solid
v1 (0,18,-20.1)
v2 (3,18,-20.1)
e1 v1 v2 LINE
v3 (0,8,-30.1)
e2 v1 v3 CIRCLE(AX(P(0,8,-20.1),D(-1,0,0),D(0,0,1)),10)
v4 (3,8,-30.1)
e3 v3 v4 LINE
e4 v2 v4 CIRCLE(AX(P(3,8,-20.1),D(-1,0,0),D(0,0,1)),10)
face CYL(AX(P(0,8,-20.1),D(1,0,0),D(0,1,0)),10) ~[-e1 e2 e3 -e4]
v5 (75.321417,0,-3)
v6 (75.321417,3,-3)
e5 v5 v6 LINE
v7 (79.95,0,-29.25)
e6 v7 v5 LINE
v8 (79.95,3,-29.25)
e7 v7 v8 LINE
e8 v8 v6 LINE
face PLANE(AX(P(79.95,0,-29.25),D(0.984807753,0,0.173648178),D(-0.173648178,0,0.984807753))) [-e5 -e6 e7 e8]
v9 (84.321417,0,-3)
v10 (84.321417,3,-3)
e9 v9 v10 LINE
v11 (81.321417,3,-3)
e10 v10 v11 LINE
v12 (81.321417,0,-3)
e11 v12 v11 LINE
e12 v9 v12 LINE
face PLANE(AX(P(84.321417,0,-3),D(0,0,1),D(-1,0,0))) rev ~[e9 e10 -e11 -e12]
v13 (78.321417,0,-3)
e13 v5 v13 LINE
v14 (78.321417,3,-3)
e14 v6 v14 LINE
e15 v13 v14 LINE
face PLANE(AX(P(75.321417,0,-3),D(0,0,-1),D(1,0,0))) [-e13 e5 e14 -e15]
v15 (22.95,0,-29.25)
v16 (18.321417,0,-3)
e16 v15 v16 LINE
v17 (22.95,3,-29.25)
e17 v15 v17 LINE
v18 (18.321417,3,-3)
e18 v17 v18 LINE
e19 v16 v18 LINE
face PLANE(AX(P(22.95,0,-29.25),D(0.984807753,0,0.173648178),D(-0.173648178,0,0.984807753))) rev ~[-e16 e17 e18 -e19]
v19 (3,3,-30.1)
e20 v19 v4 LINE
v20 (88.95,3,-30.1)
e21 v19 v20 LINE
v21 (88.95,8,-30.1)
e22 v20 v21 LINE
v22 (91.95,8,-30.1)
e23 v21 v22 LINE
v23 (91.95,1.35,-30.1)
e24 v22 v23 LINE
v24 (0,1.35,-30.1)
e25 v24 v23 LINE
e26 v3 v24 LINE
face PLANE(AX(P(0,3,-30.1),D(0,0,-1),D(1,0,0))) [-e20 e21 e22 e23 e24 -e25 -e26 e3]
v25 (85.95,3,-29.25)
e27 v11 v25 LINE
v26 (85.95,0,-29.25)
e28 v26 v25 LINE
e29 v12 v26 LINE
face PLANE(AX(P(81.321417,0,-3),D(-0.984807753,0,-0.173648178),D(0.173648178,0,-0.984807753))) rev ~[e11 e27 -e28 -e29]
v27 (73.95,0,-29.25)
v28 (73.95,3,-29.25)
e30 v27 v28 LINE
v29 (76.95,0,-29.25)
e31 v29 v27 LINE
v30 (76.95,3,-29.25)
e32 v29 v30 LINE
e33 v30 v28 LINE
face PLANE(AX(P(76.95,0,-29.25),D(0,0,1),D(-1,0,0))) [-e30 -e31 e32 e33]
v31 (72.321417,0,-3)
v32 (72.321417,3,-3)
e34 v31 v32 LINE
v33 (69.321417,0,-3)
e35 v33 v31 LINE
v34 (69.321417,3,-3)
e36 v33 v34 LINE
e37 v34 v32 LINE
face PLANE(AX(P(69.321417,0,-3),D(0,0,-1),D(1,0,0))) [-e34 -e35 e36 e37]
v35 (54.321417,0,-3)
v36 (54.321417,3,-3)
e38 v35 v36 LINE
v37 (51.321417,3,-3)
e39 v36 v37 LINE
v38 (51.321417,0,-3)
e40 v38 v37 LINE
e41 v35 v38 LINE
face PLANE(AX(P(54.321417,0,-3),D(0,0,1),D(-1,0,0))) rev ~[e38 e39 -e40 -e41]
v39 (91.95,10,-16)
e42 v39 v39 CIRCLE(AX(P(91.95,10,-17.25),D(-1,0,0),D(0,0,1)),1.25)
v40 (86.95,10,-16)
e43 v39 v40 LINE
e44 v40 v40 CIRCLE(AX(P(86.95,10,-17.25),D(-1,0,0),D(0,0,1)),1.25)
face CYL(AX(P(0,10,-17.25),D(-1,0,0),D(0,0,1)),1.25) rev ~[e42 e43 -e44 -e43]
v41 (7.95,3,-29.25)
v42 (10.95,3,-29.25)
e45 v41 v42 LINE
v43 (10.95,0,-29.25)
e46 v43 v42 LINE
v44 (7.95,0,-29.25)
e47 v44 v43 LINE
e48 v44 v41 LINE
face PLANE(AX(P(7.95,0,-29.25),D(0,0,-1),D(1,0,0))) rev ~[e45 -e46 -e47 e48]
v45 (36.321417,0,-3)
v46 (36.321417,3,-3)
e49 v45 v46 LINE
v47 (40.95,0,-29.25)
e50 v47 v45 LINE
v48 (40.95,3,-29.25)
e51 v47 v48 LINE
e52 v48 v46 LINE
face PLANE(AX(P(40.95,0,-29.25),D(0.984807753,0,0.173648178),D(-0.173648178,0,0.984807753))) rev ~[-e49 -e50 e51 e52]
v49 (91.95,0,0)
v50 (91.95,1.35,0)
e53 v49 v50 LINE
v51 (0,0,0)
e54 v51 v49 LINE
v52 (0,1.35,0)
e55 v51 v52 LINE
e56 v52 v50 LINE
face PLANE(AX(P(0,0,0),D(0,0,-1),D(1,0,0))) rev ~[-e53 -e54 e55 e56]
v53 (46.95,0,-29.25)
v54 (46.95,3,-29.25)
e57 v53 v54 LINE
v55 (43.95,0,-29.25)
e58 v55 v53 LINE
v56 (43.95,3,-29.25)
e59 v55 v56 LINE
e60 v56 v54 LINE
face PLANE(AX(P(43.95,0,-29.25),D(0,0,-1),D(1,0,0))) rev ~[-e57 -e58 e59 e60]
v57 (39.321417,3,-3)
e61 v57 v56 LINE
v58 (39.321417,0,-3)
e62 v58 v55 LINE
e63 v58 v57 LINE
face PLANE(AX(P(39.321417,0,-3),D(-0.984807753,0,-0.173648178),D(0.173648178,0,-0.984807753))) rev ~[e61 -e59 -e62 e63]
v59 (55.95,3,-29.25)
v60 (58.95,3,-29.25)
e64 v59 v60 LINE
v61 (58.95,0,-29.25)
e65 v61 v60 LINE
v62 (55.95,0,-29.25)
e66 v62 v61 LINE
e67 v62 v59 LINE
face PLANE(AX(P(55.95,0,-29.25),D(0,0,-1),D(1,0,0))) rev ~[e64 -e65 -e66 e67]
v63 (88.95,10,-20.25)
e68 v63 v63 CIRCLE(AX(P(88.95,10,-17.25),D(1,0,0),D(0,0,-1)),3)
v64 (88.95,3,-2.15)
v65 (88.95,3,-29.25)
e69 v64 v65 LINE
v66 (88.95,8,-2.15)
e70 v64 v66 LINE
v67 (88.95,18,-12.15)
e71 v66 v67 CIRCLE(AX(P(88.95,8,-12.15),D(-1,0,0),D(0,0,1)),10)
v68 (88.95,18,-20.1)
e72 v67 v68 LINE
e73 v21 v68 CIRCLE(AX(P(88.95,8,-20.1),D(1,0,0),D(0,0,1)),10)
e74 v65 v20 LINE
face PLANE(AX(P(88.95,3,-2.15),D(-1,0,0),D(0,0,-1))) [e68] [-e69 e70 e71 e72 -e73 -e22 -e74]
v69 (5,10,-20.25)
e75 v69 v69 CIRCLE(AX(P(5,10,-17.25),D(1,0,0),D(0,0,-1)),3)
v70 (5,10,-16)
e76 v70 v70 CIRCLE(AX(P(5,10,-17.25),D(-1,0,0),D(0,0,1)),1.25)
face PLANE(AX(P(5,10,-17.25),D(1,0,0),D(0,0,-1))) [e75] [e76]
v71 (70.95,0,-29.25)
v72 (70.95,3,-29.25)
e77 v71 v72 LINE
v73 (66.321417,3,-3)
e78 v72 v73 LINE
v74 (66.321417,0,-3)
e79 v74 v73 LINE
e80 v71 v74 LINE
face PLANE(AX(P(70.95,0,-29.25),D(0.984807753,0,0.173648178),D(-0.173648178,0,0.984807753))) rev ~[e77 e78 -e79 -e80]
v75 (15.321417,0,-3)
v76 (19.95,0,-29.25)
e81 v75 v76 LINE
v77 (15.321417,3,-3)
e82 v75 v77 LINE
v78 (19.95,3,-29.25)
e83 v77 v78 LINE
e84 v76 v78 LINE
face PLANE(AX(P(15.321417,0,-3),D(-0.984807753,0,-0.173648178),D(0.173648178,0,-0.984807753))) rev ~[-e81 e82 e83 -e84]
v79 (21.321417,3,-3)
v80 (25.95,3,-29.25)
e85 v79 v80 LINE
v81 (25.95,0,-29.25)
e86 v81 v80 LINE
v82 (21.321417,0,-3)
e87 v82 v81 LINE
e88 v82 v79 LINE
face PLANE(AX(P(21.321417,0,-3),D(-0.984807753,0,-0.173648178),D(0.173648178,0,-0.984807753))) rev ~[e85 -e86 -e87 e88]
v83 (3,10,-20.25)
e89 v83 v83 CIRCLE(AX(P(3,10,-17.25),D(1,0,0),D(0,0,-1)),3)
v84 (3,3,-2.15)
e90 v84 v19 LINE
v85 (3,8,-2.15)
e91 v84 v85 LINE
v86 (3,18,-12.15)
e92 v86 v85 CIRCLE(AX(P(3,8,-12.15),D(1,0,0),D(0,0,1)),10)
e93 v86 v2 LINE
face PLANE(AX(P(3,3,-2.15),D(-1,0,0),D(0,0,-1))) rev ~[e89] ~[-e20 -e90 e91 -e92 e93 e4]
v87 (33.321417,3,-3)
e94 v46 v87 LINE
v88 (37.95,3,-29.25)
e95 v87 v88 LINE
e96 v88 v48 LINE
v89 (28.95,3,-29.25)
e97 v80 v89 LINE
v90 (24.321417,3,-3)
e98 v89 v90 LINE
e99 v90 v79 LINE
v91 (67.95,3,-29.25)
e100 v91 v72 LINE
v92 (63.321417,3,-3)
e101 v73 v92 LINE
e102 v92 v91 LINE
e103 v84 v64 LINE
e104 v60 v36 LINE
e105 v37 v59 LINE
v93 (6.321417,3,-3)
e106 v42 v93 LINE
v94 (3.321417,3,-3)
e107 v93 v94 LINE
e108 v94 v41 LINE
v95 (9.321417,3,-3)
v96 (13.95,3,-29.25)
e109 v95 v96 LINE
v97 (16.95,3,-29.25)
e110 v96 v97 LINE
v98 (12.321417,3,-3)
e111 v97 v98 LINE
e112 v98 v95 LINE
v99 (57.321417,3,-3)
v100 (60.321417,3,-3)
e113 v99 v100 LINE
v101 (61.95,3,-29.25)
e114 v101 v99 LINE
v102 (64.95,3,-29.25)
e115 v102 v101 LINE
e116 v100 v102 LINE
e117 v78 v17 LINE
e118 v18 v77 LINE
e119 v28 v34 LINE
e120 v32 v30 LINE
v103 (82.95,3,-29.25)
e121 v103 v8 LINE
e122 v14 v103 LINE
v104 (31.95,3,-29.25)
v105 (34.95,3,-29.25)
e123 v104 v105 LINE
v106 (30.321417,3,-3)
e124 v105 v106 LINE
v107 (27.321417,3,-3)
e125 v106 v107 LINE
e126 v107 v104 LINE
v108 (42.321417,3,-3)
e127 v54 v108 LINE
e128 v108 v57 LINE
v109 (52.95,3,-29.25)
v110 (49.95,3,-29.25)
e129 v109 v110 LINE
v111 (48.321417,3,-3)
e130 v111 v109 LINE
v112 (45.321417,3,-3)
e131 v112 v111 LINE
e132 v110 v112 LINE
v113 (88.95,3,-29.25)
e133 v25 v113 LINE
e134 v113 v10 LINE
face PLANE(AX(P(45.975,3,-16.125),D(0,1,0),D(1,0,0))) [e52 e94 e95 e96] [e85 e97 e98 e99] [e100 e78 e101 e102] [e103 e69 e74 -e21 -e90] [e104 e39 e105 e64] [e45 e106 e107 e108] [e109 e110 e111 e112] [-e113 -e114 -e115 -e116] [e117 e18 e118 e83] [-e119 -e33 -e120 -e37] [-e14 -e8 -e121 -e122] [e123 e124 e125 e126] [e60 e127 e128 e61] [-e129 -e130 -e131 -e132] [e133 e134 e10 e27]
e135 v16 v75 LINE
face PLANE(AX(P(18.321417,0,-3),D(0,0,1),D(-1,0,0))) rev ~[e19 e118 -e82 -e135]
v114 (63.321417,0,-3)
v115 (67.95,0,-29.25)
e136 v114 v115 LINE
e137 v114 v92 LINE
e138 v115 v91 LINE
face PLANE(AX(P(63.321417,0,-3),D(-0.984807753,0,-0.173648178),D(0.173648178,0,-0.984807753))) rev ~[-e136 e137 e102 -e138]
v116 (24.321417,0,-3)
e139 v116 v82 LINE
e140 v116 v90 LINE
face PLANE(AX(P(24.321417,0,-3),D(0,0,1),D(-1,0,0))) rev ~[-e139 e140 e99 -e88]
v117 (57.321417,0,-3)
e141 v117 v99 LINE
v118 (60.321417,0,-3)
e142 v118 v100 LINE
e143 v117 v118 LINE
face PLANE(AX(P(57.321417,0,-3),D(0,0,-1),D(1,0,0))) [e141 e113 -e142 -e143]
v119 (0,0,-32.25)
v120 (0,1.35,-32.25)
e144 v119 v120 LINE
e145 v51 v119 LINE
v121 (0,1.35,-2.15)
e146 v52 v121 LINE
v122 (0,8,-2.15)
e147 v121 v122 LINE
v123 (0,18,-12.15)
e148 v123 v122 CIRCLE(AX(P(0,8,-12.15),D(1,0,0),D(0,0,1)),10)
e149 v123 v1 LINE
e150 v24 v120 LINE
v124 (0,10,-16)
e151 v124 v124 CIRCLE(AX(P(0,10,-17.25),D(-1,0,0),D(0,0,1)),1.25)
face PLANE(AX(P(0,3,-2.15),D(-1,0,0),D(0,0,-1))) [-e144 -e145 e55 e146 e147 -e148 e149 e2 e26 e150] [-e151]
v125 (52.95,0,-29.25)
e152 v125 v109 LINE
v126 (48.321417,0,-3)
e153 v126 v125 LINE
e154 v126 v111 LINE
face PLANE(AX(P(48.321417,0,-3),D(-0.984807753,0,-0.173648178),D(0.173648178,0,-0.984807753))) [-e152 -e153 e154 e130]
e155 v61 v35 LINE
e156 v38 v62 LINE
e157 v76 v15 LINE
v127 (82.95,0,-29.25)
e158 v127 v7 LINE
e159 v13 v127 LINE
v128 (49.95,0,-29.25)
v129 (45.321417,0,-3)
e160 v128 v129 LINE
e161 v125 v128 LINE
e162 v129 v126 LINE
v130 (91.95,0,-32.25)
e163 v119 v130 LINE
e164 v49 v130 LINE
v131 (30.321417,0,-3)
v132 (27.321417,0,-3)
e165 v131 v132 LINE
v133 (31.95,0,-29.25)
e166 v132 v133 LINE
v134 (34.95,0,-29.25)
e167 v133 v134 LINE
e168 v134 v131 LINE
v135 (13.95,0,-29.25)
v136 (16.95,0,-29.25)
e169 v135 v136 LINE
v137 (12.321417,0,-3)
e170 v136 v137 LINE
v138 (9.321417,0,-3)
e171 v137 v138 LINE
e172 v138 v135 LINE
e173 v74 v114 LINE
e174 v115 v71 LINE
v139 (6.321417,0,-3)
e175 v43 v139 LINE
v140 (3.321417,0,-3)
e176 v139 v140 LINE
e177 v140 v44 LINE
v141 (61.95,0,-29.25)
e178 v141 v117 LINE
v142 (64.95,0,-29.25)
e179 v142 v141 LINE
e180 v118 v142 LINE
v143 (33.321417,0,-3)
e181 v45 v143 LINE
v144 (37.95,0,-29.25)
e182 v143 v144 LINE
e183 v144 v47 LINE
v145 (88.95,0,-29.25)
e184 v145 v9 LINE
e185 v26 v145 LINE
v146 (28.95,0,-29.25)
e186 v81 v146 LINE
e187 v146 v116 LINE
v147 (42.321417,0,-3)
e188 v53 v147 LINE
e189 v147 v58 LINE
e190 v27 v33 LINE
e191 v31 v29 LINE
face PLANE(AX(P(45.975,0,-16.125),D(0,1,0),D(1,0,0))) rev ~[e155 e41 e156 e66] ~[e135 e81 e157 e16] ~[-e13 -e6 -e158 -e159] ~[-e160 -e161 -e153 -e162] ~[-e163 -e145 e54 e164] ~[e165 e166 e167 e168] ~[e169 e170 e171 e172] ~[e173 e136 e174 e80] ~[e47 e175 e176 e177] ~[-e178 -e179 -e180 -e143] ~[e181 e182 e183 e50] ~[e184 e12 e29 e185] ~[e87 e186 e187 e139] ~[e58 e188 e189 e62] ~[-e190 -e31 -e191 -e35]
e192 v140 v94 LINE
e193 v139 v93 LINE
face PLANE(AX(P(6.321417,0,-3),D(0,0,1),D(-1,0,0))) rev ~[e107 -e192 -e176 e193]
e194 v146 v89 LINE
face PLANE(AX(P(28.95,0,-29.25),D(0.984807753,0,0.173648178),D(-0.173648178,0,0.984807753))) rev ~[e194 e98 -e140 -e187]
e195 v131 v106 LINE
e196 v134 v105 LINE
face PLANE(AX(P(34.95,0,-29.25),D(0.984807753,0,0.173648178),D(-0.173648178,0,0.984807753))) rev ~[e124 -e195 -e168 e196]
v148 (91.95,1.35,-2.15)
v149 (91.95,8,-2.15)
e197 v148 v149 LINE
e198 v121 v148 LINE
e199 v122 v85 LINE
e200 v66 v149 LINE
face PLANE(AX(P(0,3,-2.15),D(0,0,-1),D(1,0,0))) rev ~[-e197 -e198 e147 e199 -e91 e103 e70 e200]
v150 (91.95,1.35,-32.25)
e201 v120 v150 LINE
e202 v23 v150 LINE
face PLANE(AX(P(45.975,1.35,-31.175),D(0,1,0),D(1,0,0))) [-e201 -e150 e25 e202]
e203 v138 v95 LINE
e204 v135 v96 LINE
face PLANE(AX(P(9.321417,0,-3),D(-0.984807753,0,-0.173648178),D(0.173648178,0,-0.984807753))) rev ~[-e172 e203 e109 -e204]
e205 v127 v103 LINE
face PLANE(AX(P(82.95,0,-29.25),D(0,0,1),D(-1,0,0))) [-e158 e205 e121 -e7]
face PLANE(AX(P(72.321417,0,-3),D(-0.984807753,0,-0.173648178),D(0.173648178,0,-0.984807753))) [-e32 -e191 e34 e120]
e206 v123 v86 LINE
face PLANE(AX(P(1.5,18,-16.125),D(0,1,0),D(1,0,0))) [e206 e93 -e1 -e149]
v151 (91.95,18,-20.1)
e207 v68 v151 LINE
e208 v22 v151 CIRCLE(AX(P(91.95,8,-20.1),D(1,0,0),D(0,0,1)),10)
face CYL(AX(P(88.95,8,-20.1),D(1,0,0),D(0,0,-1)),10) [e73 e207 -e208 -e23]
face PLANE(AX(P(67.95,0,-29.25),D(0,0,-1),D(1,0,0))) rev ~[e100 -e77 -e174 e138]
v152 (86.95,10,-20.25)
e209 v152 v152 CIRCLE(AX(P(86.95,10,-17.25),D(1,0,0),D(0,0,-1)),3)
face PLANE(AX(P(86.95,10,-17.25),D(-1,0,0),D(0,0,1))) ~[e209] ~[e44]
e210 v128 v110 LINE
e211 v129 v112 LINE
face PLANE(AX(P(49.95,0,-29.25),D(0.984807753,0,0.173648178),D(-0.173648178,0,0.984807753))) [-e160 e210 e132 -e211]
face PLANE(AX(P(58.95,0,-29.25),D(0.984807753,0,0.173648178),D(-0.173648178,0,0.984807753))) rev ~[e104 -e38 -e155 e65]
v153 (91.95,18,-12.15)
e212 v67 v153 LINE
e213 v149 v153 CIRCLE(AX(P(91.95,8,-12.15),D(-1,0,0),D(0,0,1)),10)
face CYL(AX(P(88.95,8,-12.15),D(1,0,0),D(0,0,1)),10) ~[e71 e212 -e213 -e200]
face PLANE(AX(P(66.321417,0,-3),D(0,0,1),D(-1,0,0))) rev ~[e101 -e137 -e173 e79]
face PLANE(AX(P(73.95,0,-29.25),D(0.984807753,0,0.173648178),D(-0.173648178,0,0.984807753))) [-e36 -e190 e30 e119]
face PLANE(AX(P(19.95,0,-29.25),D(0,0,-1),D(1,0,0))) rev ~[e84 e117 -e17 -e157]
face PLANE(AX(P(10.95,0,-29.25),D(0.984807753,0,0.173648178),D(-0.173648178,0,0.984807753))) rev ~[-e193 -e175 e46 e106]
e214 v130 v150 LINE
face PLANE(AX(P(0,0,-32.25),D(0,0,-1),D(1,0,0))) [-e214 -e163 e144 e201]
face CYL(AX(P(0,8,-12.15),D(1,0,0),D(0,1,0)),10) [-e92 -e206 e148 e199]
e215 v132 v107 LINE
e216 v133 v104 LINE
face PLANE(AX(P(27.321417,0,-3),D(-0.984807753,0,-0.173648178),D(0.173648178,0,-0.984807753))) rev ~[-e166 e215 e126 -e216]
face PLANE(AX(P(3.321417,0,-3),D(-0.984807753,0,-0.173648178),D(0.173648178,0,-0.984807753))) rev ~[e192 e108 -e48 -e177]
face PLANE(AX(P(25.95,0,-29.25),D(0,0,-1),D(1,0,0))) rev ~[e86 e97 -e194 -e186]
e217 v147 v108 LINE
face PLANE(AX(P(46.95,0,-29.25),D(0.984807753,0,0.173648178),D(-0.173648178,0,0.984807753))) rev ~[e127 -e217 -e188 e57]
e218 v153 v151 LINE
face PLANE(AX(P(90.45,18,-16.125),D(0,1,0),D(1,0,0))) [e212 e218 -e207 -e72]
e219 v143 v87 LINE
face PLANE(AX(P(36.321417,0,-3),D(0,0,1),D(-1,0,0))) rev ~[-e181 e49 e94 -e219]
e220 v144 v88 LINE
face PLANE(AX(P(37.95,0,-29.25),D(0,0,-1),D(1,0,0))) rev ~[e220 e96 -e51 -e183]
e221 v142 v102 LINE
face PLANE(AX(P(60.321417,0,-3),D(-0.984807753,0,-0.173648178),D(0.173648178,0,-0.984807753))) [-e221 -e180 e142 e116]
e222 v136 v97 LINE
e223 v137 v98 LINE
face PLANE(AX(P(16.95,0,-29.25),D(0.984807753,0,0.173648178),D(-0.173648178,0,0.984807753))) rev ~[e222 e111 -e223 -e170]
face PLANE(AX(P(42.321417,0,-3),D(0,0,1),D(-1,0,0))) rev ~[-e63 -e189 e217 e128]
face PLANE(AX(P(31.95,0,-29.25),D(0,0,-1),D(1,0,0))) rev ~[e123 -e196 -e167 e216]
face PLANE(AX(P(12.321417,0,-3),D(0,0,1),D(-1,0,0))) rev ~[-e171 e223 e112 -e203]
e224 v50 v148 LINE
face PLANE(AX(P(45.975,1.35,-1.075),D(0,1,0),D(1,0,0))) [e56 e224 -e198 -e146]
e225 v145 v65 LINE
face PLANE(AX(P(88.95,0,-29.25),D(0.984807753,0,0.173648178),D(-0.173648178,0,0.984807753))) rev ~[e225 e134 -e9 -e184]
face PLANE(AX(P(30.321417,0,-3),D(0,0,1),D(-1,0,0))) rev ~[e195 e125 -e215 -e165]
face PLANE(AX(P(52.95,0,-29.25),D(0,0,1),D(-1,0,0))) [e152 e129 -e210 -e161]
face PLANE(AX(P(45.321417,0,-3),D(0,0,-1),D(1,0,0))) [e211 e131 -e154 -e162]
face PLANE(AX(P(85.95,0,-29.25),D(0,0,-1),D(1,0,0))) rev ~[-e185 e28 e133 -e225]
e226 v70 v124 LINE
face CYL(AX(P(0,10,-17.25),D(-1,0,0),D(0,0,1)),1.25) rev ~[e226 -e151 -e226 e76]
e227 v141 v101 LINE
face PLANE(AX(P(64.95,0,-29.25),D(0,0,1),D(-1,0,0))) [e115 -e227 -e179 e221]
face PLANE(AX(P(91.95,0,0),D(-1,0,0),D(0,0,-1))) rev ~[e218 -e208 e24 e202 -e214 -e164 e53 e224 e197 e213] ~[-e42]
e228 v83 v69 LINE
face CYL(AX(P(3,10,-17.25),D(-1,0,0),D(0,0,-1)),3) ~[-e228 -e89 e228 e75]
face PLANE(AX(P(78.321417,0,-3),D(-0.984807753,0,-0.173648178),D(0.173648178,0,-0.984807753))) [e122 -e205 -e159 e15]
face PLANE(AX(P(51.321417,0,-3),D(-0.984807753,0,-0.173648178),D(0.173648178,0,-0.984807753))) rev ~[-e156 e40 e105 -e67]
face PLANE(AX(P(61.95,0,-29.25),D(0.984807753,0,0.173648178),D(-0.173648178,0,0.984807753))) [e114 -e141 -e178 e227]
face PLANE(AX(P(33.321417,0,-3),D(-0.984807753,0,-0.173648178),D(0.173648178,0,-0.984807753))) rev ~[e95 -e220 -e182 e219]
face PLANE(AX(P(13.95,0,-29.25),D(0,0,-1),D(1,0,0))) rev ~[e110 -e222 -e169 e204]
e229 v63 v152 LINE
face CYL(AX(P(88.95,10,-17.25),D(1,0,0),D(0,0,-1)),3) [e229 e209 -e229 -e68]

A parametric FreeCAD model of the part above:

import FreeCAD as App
import Part
import Sketcher
Q = App.Units.Quantity


def edges_at(feature, points):
    """Names of the edges that pass closest to the given points."""
    edges = feature.Shape.Edges
    near = lambda p: min(range(len(edges)), key=lambda i: edges[i].distToShape(Part.Vertex(*p))[0])
    return sorted({f"Edge{near(p) + 1}" for p in points})


def add_polygon(sketch, points):
    """Adds a closed chain of lines whose ends are joined by coincident constraints."""
    first, n = sketch.GeometryCount, len(points)
    for a, b in zip(points, points[1:] + points[:1]):
        sketch.addGeometry(Part.LineSegment(App.Vector(*a, 0), App.Vector(*b, 0)), False)
    for i in range(n):
        sketch.addConstraint(Sketcher.Constraint("Coincident", first + i, 2, first + (i + 1) % n, 1))

doc = App.newDocument("Part")
params = doc.addObject("Spreadsheet::Sheet", "Params")
for row, (alias, value) in enumerate([
    ("sketch1_width", "91.95 mm"),
    ("sketch1_height", "32.25 mm"),
    ("pad1_length", "3 mm"),
    ("sketch2_width", "91.95 mm"),
    ("sketch2_height", "2.15 mm"),
    ("pocket1_length", "1.65 mm"),
    ("sketch3_width", "3 mm"),
    ("sketch3_height", "27.95 mm"),
    ("pad2_length", "15 mm"),
    ("sketch4_diameter", "2.5 mm"),
    ("fillet_radius", "10 mm"),
    ("sketch5_width", "3 mm"),
    ("sketch6_width", "3 mm"),
    ("sketch7_width", "3 mm"),
    ("sketch8_width", "3 mm"),
    ("sketch9_width", "3 mm"),
    ("sketch10_width", "3 mm"),
    ("sketch11_width", "3 mm"),
    ("sketch12_width", "3 mm"),
    ("sketch13_width", "3 mm"),
    ("sketch14_width", "3 mm"),
    ("sketch15_width", "3 mm"),
    ("sketch16_width", "3 mm"),
    ("sketch17_width", "3 mm"),
    ("sketch18_width", "3 mm"),
    ("sketch19_diameter", "6 mm"),
    ("pad3_length", "2 mm"),
    ("sketch20_diameter", "2.5 mm"),
], start=1):
    params.set(f"A{row}", alias)
    params.set(f"B{row}", "=" + value)
    params.setAlias(f"B{row}", alias)

body = doc.addObject("PartDesign::Body", "Body")

# Sketch on XZ plane
sketch1 = doc.addObject("Sketcher::SketchObject", "Sketch")
body.addObject(sketch1)
sketch1.AttachmentSupport = (doc.XZ_Plane, [""])
sketch1.MapMode = "FlatFace"
add_polygon(sketch1, [(0, -32), (0, 0), (92, 0), (92, -32)])  # lines 0-3
sketch1.addConstraint([
    Sketcher.Constraint("Vertical", 0),
    Sketcher.Constraint("Horizontal", 1),
    Sketcher.Constraint("Vertical", 2),
    Sketcher.Constraint("Horizontal", 3),
    Sketcher.Constraint("Coincident", 0, 2, -1, 1),
    Sketcher.Constraint("DistanceX", 1, 1, 1, 2, Q("91.95 mm")),
    Sketcher.Constraint("DistanceY", 0, 1, 0, 2, Q("32.25 mm")),
])
sketch1.setExpression("Constraints[9]", "Params.sketch1_width")
sketch1.setExpression("Constraints[10]", "Params.sketch1_height")
pad1 = doc.addObject("PartDesign::Pad", "Pad")
body.addObject(pad1)
pad1.Profile = sketch1
pad1.setExpression("Length", "Params.pad1_length")
pad1.Reversed = True

# Sketch on XZ plane
sketch2 = doc.addObject("Sketcher::SketchObject", "Sketch001")
body.addObject(sketch2)
sketch2.AttachmentSupport = (doc.XZ_Plane, [""])
sketch2.MapMode = "FlatFace"
sketch2.AttachmentOffset = App.Placement(App.Vector(0, 0, -3), App.Rotation())
add_polygon(sketch2, [(0, -32.2), (0, -30.1), (92, -30.1), (92, -32.2)])  # lines 0-3
add_polygon(sketch2, [(0, -2.1), (0, 0), (92, 0), (92, -2.1)])  # lines 4-7
sketch2.addConstraint([
    Sketcher.Constraint("Vertical", 0),
    Sketcher.Constraint("Horizontal", 1),
    Sketcher.Constraint("Vertical", 2),
    Sketcher.Constraint("Horizontal", 3),
    Sketcher.Constraint("Vertical", 4),
    Sketcher.Constraint("Horizontal", 5),
    Sketcher.Constraint("Vertical", 6),
    Sketcher.Constraint("Horizontal", 7),
    Sketcher.Constraint("Coincident", 4, 2, -1, 1),
    Sketcher.Constraint("PointOnObject", 0, 2, -2),
    Sketcher.Constraint("Vertical", 2, 2, 5, 2),
    Sketcher.Constraint("Equal", 2, 4),
    Sketcher.Constraint("DistanceX", 1, 1, 1, 2, Q("91.95 mm")),
    Sketcher.Constraint("DistanceY", 0, 1, 0, 2, Q("2.15 mm")),
    Sketcher.Constraint("DistanceY", 0, 2, -1, 1, Q("30.1 mm")),
])
sketch2.setExpression("Constraints[20]", "Params.sketch2_width")
sketch2.setExpression("Constraints[21]", "Params.sketch2_height")
pocket1 = doc.addObject("PartDesign::Pocket", "Pocket")
body.addObject(pocket1)
pocket1.Profile = sketch2
pocket1.setExpression("Length", "Params.pocket1_length")
pocket1.Reversed = True

# Sketch on XZ plane
sketch3 = doc.addObject("Sketcher::SketchObject", "Sketch002")
body.addObject(sketch3)
sketch3.AttachmentSupport = (doc.XZ_Plane, [""])
sketch3.MapMode = "FlatFace"
sketch3.AttachmentOffset = App.Placement(App.Vector(0, 0, -3), App.Rotation())
add_polygon(sketch3, [(0, -30.1), (0, -2.1), (3, -2.1), (3, -30.1)])  # lines 0-3
add_polygon(sketch3, [(89, -30.1), (89, -2.1), (92, -2.1), (92, -30.1)])  # lines 4-7
sketch3.addConstraint([
    Sketcher.Constraint("Vertical", 0),
    Sketcher.Constraint("Horizontal", 1),
    Sketcher.Constraint("Vertical", 2),
    Sketcher.Constraint("Horizontal", 3),
    Sketcher.Constraint("Vertical", 4),
    Sketcher.Constraint("Horizontal", 5),
    Sketcher.Constraint("Vertical", 6),
    Sketcher.Constraint("Horizontal", 7),
    Sketcher.Constraint("PointOnObject", 0, 2, -2),
    Sketcher.Constraint("Horizontal", 1, 2, 4, 2),
    Sketcher.Constraint("Horizontal", 3, 2, 6, 2),
    Sketcher.Constraint("Equal", 3, 5),
    Sketcher.Constraint("DistanceX", 1, 1, 1, 2, Q("3 mm")),
    Sketcher.Constraint("DistanceY", 0, 1, 0, 2, Q("27.95 mm")),
    Sketcher.Constraint("DistanceY", 2, 2, -1, 1, Q("30.1 mm")),
    Sketcher.Constraint("DistanceX", -1, 1, 4, 2, Q("88.95 mm")),
])
sketch3.setExpression("Constraints[20]", "Params.sketch3_width")
sketch3.setExpression("Constraints[21]", "Params.sketch3_height")
pad2 = doc.addObject("PartDesign::Pad", "Pad001")
body.addObject(pad2)
pad2.Profile = sketch3
pad2.setExpression("Length", "Params.pad2_length")
pad2.Reversed = True

# Sketch on YZ plane
sketch4 = doc.addObject("Sketcher::SketchObject", "Sketch003")
body.addObject(sketch4)
sketch4.AttachmentSupport = (doc.YZ_Plane, [""])
sketch4.MapMode = "FlatFace"
sketch4.addGeometry(Part.Circle(App.Vector(10, -17.2, 0), App.Vector(0, 0, 1), 1.2), False)
sketch4.addConstraint([
    Sketcher.Constraint("Diameter", 0, Q("2.5 mm")),
    Sketcher.Constraint("DistanceX", -1, 1, 0, 3, Q("10 mm")),
    Sketcher.Constraint("DistanceY", 0, 3, -1, 1, Q("17.25 mm")),
])
sketch4.setExpression("Constraints[0]", "Params.sketch4_diameter")
pocket2 = doc.addObject("PartDesign::Pocket", "Pocket001")
body.addObject(pocket2)
pocket2.Profile = sketch4
pocket2.Type = "ThroughAll"
pocket2.Midplane = True
doc.recompute()

fillet = doc.addObject("PartDesign::Fillet", "Fillet")
body.addObject(fillet)
fillet.Base = (pocket2, edges_at(pocket2, [
    (1.5, 18, -2.15),
    (1.5, 18, -30.1),
    (90.45, 18, -30.1),
    (90.45, 18, -2.15),
]))
fillet.setExpression("Radius", "Params.fillet_radius")

# Sketch on XZ plane
sketch5 = doc.addObject("Sketcher::SketchObject", "Sketch004")
body.addObject(sketch5)
sketch5.AttachmentSupport = (doc.XZ_Plane, [""])
sketch5.MapMode = "FlatFace"
add_polygon(sketch5, [(8, -29.2), (10.9, -29.2), (6.3, -3), (3.3, -3)])  # lines 0-3
sketch5.addConstraint([
    Sketcher.Constraint("Horizontal", 0),
    Sketcher.Constraint("Horizontal", 2),
    Sketcher.Constraint("Parallel", 1, 3),
    Sketcher.Constraint("DistanceX", 0, 1, 0, 2, Q("3 mm")),
    Sketcher.Constraint("Angle", 1, Q("100 deg")),
    Sketcher.Constraint("DistanceY", 1, 2, -1, 1, Q("3 mm")),
    Sketcher.Constraint("DistanceX", -1, 1, 0, 2, Q("10.95 mm")),
    Sketcher.Constraint("DistanceY", 0, 2, -1, 1, Q("29.25 mm")),
])
sketch5.setExpression("Constraints[7]", "Params.sketch5_width")
pocket3 = doc.addObject("PartDesign::Pocket", "Pocket002")
body.addObject(pocket3)
pocket3.Profile = sketch5
pocket3.Type = "UpToFirst"

# Sketch on XZ plane
sketch6 = doc.addObject("Sketcher::SketchObject", "Sketch005")
body.addObject(sketch6)
sketch6.AttachmentSupport = (doc.XZ_Plane, [""])
sketch6.MapMode = "FlatFace"
add_polygon(sketch6, [(19.9, -29.2), (22.9, -29.2), (18.3, -3), (15.3, -3)])  # lines 0-3
sketch6.addConstraint([
    Sketcher.Constraint("Horizontal", 0),
    Sketcher.Constraint("Horizontal", 2),
    Sketcher.Constraint("Parallel", 1, 3),
    Sketcher.Constraint("DistanceX", 0, 1, 0, 2, Q("3 mm")),
    Sketcher.Constraint("Angle", 1, Q("100 deg")),
    Sketcher.Constraint("DistanceY", 1, 2, -1, 1, Q("3 mm")),
    Sketcher.Constraint("DistanceX", -1, 1, 0, 2, Q("22.95 mm")),
    Sketcher.Constraint("DistanceY", 0, 2, -1, 1, Q("29.25 mm")),
])
sketch6.setExpression("Constraints[7]", "Params.sketch6_width")
pocket4 = doc.addObject("PartDesign::Pocket", "Pocket003")
body.addObject(pocket4)
pocket4.Profile = sketch6
pocket4.Type = "UpToFirst"

# Sketch on XZ plane
sketch7 = doc.addObject("Sketcher::SketchObject", "Sketch006")
body.addObject(sketch7)
sketch7.AttachmentSupport = (doc.XZ_Plane, [""])
sketch7.MapMode = "FlatFace"
add_polygon(sketch7, [(25.9, -29.2), (28.9, -29.2), (24.3, -3), (21.3, -3)])  # lines 0-3
sketch7.addConstraint([
    Sketcher.Constraint("Horizontal", 0),
    Sketcher.Constraint("Horizontal", 2),
    Sketcher.Constraint("Parallel", 1, 3),
    Sketcher.Constraint("DistanceX", 0, 1, 0, 2, Q("3 mm")),
    Sketcher.Constraint("Angle", 1, Q("100 deg")),
    Sketcher.Constraint("DistanceY", 1, 2, -1, 1, Q("3 mm")),
    Sketcher.Constraint("DistanceX", -1, 1, 0, 2, Q("28.95 mm")),
    Sketcher.Constraint("DistanceY", 0, 2, -1, 1, Q("29.25 mm")),
])
sketch7.setExpression("Constraints[7]", "Params.sketch7_width")
pocket5 = doc.addObject("PartDesign::Pocket", "Pocket004")
body.addObject(pocket5)
pocket5.Profile = sketch7
pocket5.Type = "UpToFirst"

# Sketch on XZ plane
sketch8 = doc.addObject("Sketcher::SketchObject", "Sketch007")
body.addObject(sketch8)
sketch8.AttachmentSupport = (doc.XZ_Plane, [""])
sketch8.MapMode = "FlatFace"
add_polygon(sketch8, [(31.9, -29.2), (35, -29.2), (30.3, -3), (27.3, -3)])  # lines 0-3
sketch8.addConstraint([
    Sketcher.Constraint("Horizontal", 0),
    Sketcher.Constraint("Horizontal", 2),
    Sketcher.Constraint("Parallel", 1, 3),
    Sketcher.Constraint("DistanceX", 0, 1, 0, 2, Q("3 mm")),
    Sketcher.Constraint("Angle", 1, Q("100 deg")),
    Sketcher.Constraint("DistanceY", 1, 2, -1, 1, Q("3 mm")),
    Sketcher.Constraint("DistanceX", -1, 1, 0, 2, Q("34.95 mm")),
    Sketcher.Constraint("DistanceY", 0, 2, -1, 1, Q("29.25 mm")),
])
sketch8.setExpression("Constraints[7]", "Params.sketch8_width")
pocket6 = doc.addObject("PartDesign::Pocket", "Pocket005")
body.addObject(pocket6)
pocket6.Profile = sketch8
pocket6.Type = "UpToFirst"

# Sketch on XZ plane
sketch9 = doc.addObject("Sketcher::SketchObject", "Sketch008")
body.addObject(sketch9)
sketch9.AttachmentSupport = (doc.XZ_Plane, [""])
sketch9.MapMode = "FlatFace"
add_polygon(sketch9, [(38, -29.2), (41, -29.2), (36.3, -3), (33.3, -3)])  # lines 0-3
sketch9.addConstraint([
    Sketcher.Constraint("Horizontal", 0),
    Sketcher.Constraint("Horizontal", 2),
    Sketcher.Constraint("Parallel", 1, 3),
    Sketcher.Constraint("DistanceX", 0, 1, 0, 2, Q("3 mm")),
    Sketcher.Constraint("Angle", 1, Q("100 deg")),
    Sketcher.Constraint("DistanceY", 1, 2, -1, 1, Q("3 mm")),
    Sketcher.Constraint("DistanceX", -1, 1, 0, 2, Q("40.95 mm")),
    Sketcher.Constraint("DistanceY", 0, 2, -1, 1, Q("29.25 mm")),
])
sketch9.setExpression("Constraints[7]", "Params.sketch9_width")
pocket7 = doc.addObject("PartDesign::Pocket", "Pocket006")
body.addObject(pocket7)
pocket7.Profile = sketch9
pocket7.Type = "UpToFirst"

# Sketch on XZ plane
sketch10 = doc.addObject("Sketcher::SketchObject", "Sketch009")
body.addObject(sketch10)
sketch10.AttachmentSupport = (doc.XZ_Plane, [""])
sketch10.MapMode = "FlatFace"
add_polygon(sketch10, [(44, -29.2), (47, -29.2), (42.3, -3), (39.3, -3)])  # lines 0-3
sketch10.addConstraint([
    Sketcher.Constraint("Horizontal", 0),
    Sketcher.Constraint("Horizontal", 2),
    Sketcher.Constraint("Parallel", 1, 3),
    Sketcher.Constraint("DistanceX", 0, 1, 0, 2, Q("3 mm")),
    Sketcher.Constraint("Angle", 1, Q("100 deg")),
    Sketcher.Constraint("DistanceY", 1, 2, -1, 1, Q("3 mm")),
    Sketcher.Constraint("DistanceX", -1, 1, 0, 2, Q("46.95 mm")),
    Sketcher.Constraint("DistanceY", 0, 2, -1, 1, Q("29.25 mm")),
])
sketch10.setExpression("Constraints[7]", "Params.sketch10_width")
pocket8 = doc.addObject("PartDesign::Pocket", "Pocket007")
body.addObject(pocket8)
pocket8.Profile = sketch10
pocket8.Type = "UpToFirst"

# Sketch on XZ plane
sketch11 = doc.addObject("Sketcher::SketchObject", "Sketch010")
body.addObject(sketch11)
sketch11.AttachmentSupport = (doc.XZ_Plane, [""])
sketch11.MapMode = "FlatFace"
add_polygon(sketch11, [(56, -29.2), (59, -29.2), (54.3, -3), (51.3, -3)])  # lines 0-3
sketch11.addConstraint([
    Sketcher.Constraint("Horizontal", 0),
    Sketcher.Constraint("Horizontal", 2),
    Sketcher.Constraint("Parallel", 1, 3),
    Sketcher.Constraint("DistanceX", 0, 1, 0, 2, Q("3 mm")),
    Sketcher.Constraint("Angle", 1, Q("100 deg")),
    Sketcher.Constraint("DistanceY", 1, 2, -1, 1, Q("3 mm")),
    Sketcher.Constraint("DistanceX", -1, 1, 0, 2, Q("58.95 mm")),
    Sketcher.Constraint("DistanceY", 0, 2, -1, 1, Q("29.25 mm")),
])
sketch11.setExpression("Constraints[7]", "Params.sketch11_width")
pocket9 = doc.addObject("PartDesign::Pocket", "Pocket008")
body.addObject(pocket9)
pocket9.Profile = sketch11
pocket9.Type = "UpToFirst"

# Sketch on XZ plane
sketch12 = doc.addObject("Sketcher::SketchObject", "Sketch011")
body.addObject(sketch12)
sketch12.AttachmentSupport = (doc.XZ_Plane, [""])
sketch12.MapMode = "FlatFace"
add_polygon(sketch12, [(68, -29.2), (71, -29.2), (66.3, -3), (63.3, -3)])  # lines 0-3
sketch12.addConstraint([
    Sketcher.Constraint("Horizontal", 0),
    Sketcher.Constraint("Horizontal", 2),
    Sketcher.Constraint("Parallel", 1, 3),
    Sketcher.Constraint("DistanceX", 0, 1, 0, 2, Q("3 mm")),
    Sketcher.Constraint("Angle", 1, Q("100 deg")),
    Sketcher.Constraint("DistanceY", 1, 2, -1, 1, Q("3 mm")),
    Sketcher.Constraint("DistanceX", -1, 1, 0, 2, Q("70.95 mm")),
    Sketcher.Constraint("DistanceY", 0, 2, -1, 1, Q("29.25 mm")),
])
sketch12.setExpression("Constraints[7]", "Params.sketch12_width")
pocket10 = doc.addObject("PartDesign::Pocket", "Pocket009")
body.addObject(pocket10)
pocket10.Profile = sketch12
pocket10.Type = "UpToFirst"

# Sketch on XZ plane
sketch13 = doc.addObject("Sketcher::SketchObject", "Sketch012")
body.addObject(sketch13)
sketch13.AttachmentSupport = (doc.XZ_Plane, [""])
sketch13.MapMode = "FlatFace"
add_polygon(sketch13, [(75.3, -3), (80, -29.2), (83, -29.2), (78.3, -3)])  # lines 0-3
sketch13.addConstraint([
    Sketcher.Constraint("Horizontal", 1),
    Sketcher.Constraint("Horizontal", 3),
    Sketcher.Constraint("Parallel", 0, 2),
    Sketcher.Constraint("DistanceX", 1, 1, 1, 2, Q("3 mm")),
    Sketcher.Constraint("Angle", 0, Q("-80 deg")),
    Sketcher.Constraint("DistanceY", 2, 2, -1, 1, Q("3 mm")),
    Sketcher.Constraint("DistanceX", -1, 1, 0, 2, Q("79.95 mm")),
    Sketcher.Constraint("DistanceY", 0, 2, -1, 1, Q("29.25 mm")),
])
sketch13.setExpression("Constraints[7]", "Params.sketch13_width")
pocket11 = doc.addObject("PartDesign::Pocket", "Pocket010")
body.addObject(pocket11)
pocket11.Profile = sketch13
pocket11.Type = "UpToFirst"

# Sketch on XZ plane
sketch14 = doc.addObject("Sketcher::SketchObject", "Sketch013")
body.addObject(sketch14)
sketch14.AttachmentSupport = (doc.XZ_Plane, [""])
sketch14.MapMode = "FlatFace"
add_polygon(sketch14, [(89, -29.2), (84.3, -3), (81.3, -3), (86, -29.2)])  # lines 0-3
sketch14.addConstraint([
    Sketcher.Constraint("Horizontal", 1),
    Sketcher.Constraint("Horizontal", 3),
    Sketcher.Constraint("Parallel", 0, 2),
    Sketcher.Constraint("DistanceX", 1, 2, 1, 1, Q("3 mm")),
    Sketcher.Constraint("Angle", 0, Q("100 deg")),
    Sketcher.Constraint("DistanceY", 0, 2, -1, 1, Q("3 mm")),
    Sketcher.Constraint("DistanceX", -1, 1, 2, 2, Q("85.95 mm")),
    Sketcher.Constraint("DistanceY", 2, 2, -1, 1, Q("29.25 mm")),
])
sketch14.setExpression("Constraints[7]", "Params.sketch14_width")
pocket12 = doc.addObject("PartDesign::Pocket", "Pocket011")
body.addObject(pocket12)
pocket12.Profile = sketch14
pocket12.Type = "UpToFirst"

# Sketch on XZ plane
sketch15 = doc.addObject("Sketcher::SketchObject", "Sketch014")
body.addObject(sketch15)
sketch15.AttachmentSupport = (doc.XZ_Plane, [""])
sketch15.MapMode = "FlatFace"
add_polygon(sketch15, [(16.9, -29.2), (12.3, -3), (9.3, -3), (13.9, -29.2)])  # lines 0-3
sketch15.addConstraint([
    Sketcher.Constraint("Horizontal", 1),
    Sketcher.Constraint("Horizontal", 3),
    Sketcher.Constraint("Parallel", 0, 2),
    Sketcher.Constraint("DistanceX", 1, 2, 1, 1, Q("3 mm")),
    Sketcher.Constraint("Angle", 0, Q("100 deg")),
    Sketcher.Constraint("DistanceY", 0, 2, -1, 1, Q("3 mm")),
    Sketcher.Constraint("DistanceX", -1, 1, 2, 2, Q("13.95 mm")),
    Sketcher.Constraint("DistanceY", 2, 2, -1, 1, Q("29.25 mm")),
])
sketch15.setExpression("Constraints[7]", "Params.sketch15_width")
pocket13 = doc.addObject("PartDesign::Pocket", "Pocket012")
body.addObject(pocket13)
pocket13.Profile = sketch15
pocket13.Type = "UpToFirst"

# Sketch on XZ plane
sketch16 = doc.addObject("Sketcher::SketchObject", "Sketch015")
body.addObject(sketch16)
sketch16.AttachmentSupport = (doc.XZ_Plane, [""])
sketch16.MapMode = "FlatFace"
add_polygon(sketch16, [(45.3, -3), (50, -29.2), (53, -29.2), (48.3, -3)])  # lines 0-3
sketch16.addConstraint([
    Sketcher.Constraint("Horizontal", 1),
    Sketcher.Constraint("Horizontal", 3),
    Sketcher.Constraint("Parallel", 0, 2),
    Sketcher.Constraint("DistanceX", 1, 1, 1, 2, Q("3 mm")),
    Sketcher.Constraint("Angle", 0, Q("-80 deg")),
    Sketcher.Constraint("DistanceY", 2, 2, -1, 1, Q("3 mm")),
    Sketcher.Constraint("DistanceX", -1, 1, 0, 2, Q("49.95 mm")),
    Sketcher.Constraint("DistanceY", 0, 2, -1, 1, Q("29.25 mm")),
])
sketch16.setExpression("Constraints[7]", "Params.sketch16_width")
pocket14 = doc.addObject("PartDesign::Pocket", "Pocket013")
body.addObject(pocket14)
pocket14.Profile = sketch16
pocket14.Type = "UpToFirst"

# Sketch on XZ plane
sketch17 = doc.addObject("Sketcher::SketchObject", "Sketch016")
body.addObject(sketch17)
sketch17.AttachmentSupport = (doc.XZ_Plane, [""])
sketch17.MapMode = "FlatFace"
add_polygon(sketch17, [(57.3, -3), (62, -29.2), (65, -29.2), (60.3, -3)])  # lines 0-3
sketch17.addConstraint([
    Sketcher.Constraint("Horizontal", 1),
    Sketcher.Constraint("Horizontal", 3),
    Sketcher.Constraint("Parallel", 0, 2),
    Sketcher.Constraint("DistanceX", 1, 1, 1, 2, Q("3 mm")),
    Sketcher.Constraint("Angle", 0, Q("-80 deg")),
    Sketcher.Constraint("DistanceY", 2, 2, -1, 1, Q("3 mm")),
    Sketcher.Constraint("DistanceX", -1, 1, 0, 2, Q("61.95 mm")),
    Sketcher.Constraint("DistanceY", 0, 2, -1, 1, Q("29.25 mm")),
])
sketch17.setExpression("Constraints[7]", "Params.sketch17_width")
pocket15 = doc.addObject("PartDesign::Pocket", "Pocket014")
body.addObject(pocket15)
pocket15.Profile = sketch17
pocket15.Type = "UpToFirst"

# Sketch on XZ plane
sketch18 = doc.addObject("Sketcher::SketchObject", "Sketch017")
body.addObject(sketch18)
sketch18.AttachmentSupport = (doc.XZ_Plane, [""])
sketch18.MapMode = "FlatFace"
add_polygon(sketch18, [(69.3, -3), (74, -29.2), (77, -29.2), (72.3, -3)])  # lines 0-3
sketch18.addConstraint([
    Sketcher.Constraint("Horizontal", 1),
    Sketcher.Constraint("Horizontal", 3),
    Sketcher.Constraint("Parallel", 0, 2),
    Sketcher.Constraint("DistanceX", 1, 1, 1, 2, Q("3 mm")),
    Sketcher.Constraint("Angle", 0, Q("-80 deg")),
    Sketcher.Constraint("DistanceY", 2, 2, -1, 1, Q("3 mm")),
    Sketcher.Constraint("DistanceX", -1, 1, 0, 2, Q("73.95 mm")),
    Sketcher.Constraint("DistanceY", 0, 2, -1, 1, Q("29.25 mm")),
])
sketch18.setExpression("Constraints[7]", "Params.sketch18_width")
pocket16 = doc.addObject("PartDesign::Pocket", "Pocket015")
body.addObject(pocket16)
pocket16.Profile = sketch18
pocket16.Type = "UpToFirst"

# Sketch on YZ plane
sketch19 = doc.addObject("Sketcher::SketchObject", "Sketch018")
body.addObject(sketch19)
sketch19.AttachmentSupport = (doc.YZ_Plane, [""])
sketch19.MapMode = "FlatFace"
sketch19.AttachmentOffset = App.Placement(App.Vector(0, 0, 3), App.Rotation())
sketch19.addGeometry(Part.Circle(App.Vector(10, -17.2, 0), App.Vector(0, 0, 1), 3), False)
sketch19.addConstraint([
    Sketcher.Constraint("Diameter", 0, Q("6 mm")),
    Sketcher.Constraint("DistanceX", -1, 1, 0, 3, Q("10 mm")),
    Sketcher.Constraint("DistanceY", 0, 3, -1, 1, Q("17.25 mm")),
])
sketch19.setExpression("Constraints[0]", "Params.sketch19_diameter")
pad3 = doc.addObject("PartDesign::Pad", "Pad002")
body.addObject(pad3)
pad3.Profile = sketch19
pad3.setExpression("Length", "Params.pad3_length")
doc.recompute()

datumplane = doc.addObject("PartDesign::Plane", "DatumPlane")
body.addObject(datumplane)
datumplane.AttachmentSupport = (doc.YZ_Plane, [""])
datumplane.MapMode = "FlatFace"
datumplane.AttachmentOffset = App.Placement(App.Vector(0, 0, 45.975), App.Rotation())
mirrored = doc.addObject("PartDesign::Mirrored", "Mirrored")
body.addObject(mirrored)
mirrored.Originals = [pad3]
mirrored.MirrorPlane = (datumplane, [""])
body.Tip = mirrored

# Sketch on YZ plane
sketch20 = doc.addObject("Sketcher::SketchObject", "Sketch019")
body.addObject(sketch20)
sketch20.AttachmentSupport = (doc.YZ_Plane, [""])
sketch20.MapMode = "FlatFace"
sketch20.addGeometry(Part.Circle(App.Vector(10, -17.2, 0), App.Vector(0, 0, 1), 1.2), False)
sketch20.addConstraint([
    Sketcher.Constraint("Diameter", 0, Q("2.5 mm")),
    Sketcher.Constraint("DistanceX", -1, 1, 0, 3, Q("10 mm")),
    Sketcher.Constraint("DistanceY", 0, 3, -1, 1, Q("17.25 mm")),
])
sketch20.setExpression("Constraints[0]", "Params.sketch20_diameter")
pocket17 = doc.addObject("PartDesign::Pocket", "Pocket016")
body.addObject(pocket17)
pocket17.Profile = sketch20
pocket17.Type = "ThroughAll"
pocket17.Midplane = True

doc.recompute()
